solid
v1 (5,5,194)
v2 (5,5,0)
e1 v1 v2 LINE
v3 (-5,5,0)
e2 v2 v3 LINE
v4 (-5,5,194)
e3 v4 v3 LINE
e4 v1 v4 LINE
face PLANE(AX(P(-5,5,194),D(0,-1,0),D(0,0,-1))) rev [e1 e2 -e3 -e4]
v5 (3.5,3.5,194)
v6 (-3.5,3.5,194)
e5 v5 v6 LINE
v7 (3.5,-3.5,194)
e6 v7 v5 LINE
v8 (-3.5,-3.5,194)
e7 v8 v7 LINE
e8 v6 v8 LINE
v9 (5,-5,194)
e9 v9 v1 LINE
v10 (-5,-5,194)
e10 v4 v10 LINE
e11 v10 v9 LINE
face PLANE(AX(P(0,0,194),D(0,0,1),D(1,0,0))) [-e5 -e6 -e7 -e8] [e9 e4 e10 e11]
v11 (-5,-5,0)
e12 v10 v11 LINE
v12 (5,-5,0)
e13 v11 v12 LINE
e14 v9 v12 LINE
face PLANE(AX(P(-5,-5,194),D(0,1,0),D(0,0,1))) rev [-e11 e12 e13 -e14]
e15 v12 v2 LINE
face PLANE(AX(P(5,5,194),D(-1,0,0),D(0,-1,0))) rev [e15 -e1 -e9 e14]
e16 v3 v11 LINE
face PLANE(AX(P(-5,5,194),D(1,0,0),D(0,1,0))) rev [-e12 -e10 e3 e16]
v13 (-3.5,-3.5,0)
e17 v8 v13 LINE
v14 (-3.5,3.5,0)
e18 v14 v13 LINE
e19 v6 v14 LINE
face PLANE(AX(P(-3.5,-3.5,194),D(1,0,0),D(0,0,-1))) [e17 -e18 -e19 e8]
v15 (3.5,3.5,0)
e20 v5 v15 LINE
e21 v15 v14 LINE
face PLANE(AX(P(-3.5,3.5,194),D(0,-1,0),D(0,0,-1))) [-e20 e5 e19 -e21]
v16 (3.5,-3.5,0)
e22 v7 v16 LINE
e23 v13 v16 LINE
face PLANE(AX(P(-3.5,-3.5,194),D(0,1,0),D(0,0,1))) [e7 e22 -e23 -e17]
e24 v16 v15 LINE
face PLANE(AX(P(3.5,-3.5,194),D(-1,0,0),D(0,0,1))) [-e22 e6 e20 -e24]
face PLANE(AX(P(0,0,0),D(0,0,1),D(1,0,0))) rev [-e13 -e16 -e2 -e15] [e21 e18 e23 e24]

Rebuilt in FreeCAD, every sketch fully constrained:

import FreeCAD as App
import Part
import Sketcher
from FreeCAD import Vector
Q = App.Units.Quantity


def add_polygon(sketch, points):
    """Adds a closed chain of lines whose ends are joined by coincident constraints."""
    first, n = sketch.GeometryCount, len(points)
    for a, b in zip(points, points[1:] + points[:1]):
        sketch.addGeometry(Part.LineSegment(App.Vector(*a, 0), App.Vector(*b, 0)), False)
    for i in range(n):
        sketch.addConstraint(Sketcher.Constraint("Coincident", first + i, 2, first + (i + 1) % n, 1))

doc = App.newDocument("Part")
params = doc.addObject("Spreadsheet::Sheet", "Params")
for row, (alias, value) in enumerate([
    ("sketch1_width", "10 mm"),
    ("sketch1_width2", "7 mm"),
    ("pad1_length", "194 mm"),
], start=1):
    params.set(f"A{row}", alias)
    params.set(f"B{row}", "=" + value)
    params.setAlias(f"B{row}", alias)

body = doc.addObject("PartDesign::Body", "Body")

sketch1 = body.newObject("Sketcher::SketchObject", "Sketch")
sketch1.AttachmentSupport = (doc.getObject("XY_Plane"), [""])
sketch1.MapMode = "FlatFace"
add_polygon(sketch1, [(-5, 5), (-5, -5), (5, -5), (5, 5)])
add_polygon(sketch1, [(3.5, -3.5), (-3.5, -3.5), (-3.5, 3.5), (3.5, 3.5)])
sketch1.addConstraint([
    Sketcher.Constraint("Vertical", 0),
    Sketcher.Constraint("Horizontal", 1),
    Sketcher.Constraint("Vertical", 2),
    Sketcher.Constraint("Horizontal", 3),
    Sketcher.Constraint("Horizontal", 4),
    Sketcher.Constraint("Vertical", 5),
    Sketcher.Constraint("Horizontal", 6),
    Sketcher.Constraint("Vertical", 7),
    Sketcher.Constraint("Symmetric", 0, 2, 2, 2, -1, 1),
    Sketcher.Constraint("Symmetric", 4, 2, 6, 2, -1, 1),
    Sketcher.Constraint("Equal", 3, 0),
    Sketcher.Constraint("Equal", 6, 5),
    Sketcher.Constraint("DistanceX", 1, 1, 1, 2, Q("10 mm")),
    Sketcher.Constraint("DistanceX", 4, 2, 4, 1, Q("7 mm")),
])
sketch1.setExpression("Constraints[20]", "Params.sketch1_width")
sketch1.setExpression("Constraints[21]", "Params.sketch1_width2")
pad1 = body.newObject("PartDesign::Pad", "Pad")
pad1.Profile = sketch1
pad1.setExpression("Length", "Params.pad1_length")

doc.recompute()
